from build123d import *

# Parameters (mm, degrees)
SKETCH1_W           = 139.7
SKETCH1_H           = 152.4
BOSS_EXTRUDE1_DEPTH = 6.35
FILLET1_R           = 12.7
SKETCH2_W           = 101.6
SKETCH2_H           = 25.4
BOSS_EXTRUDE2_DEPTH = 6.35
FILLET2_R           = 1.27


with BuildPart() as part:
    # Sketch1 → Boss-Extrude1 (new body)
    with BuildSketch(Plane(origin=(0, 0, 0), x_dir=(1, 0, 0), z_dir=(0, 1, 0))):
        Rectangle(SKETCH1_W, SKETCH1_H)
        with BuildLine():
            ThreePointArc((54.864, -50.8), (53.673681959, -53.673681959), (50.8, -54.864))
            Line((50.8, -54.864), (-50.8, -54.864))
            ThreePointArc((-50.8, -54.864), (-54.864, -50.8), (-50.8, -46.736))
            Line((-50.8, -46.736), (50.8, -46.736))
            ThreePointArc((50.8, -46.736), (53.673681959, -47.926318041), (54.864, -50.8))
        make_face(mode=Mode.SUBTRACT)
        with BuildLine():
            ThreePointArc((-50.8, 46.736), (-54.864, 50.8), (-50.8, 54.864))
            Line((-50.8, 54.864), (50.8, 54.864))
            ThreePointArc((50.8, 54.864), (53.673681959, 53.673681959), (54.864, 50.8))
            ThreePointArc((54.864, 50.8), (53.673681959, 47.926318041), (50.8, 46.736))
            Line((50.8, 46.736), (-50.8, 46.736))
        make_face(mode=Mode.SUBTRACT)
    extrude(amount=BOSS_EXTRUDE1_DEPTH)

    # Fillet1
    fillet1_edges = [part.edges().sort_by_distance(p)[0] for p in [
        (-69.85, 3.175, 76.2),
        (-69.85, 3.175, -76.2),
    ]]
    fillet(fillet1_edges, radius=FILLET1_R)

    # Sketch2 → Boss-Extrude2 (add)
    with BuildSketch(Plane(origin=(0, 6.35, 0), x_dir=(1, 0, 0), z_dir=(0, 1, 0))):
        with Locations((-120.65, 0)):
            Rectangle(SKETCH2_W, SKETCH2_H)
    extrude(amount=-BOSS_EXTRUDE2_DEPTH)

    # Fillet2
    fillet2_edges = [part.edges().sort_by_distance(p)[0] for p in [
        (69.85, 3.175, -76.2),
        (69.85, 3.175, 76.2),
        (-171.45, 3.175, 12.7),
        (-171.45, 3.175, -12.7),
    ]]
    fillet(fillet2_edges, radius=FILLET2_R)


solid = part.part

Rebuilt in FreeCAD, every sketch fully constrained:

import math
import FreeCAD as App
import Part
import Sketcher
from FreeCAD import Vector
Q = App.Units.Quantity


def edges_at(feature, points):
    """Names of the edges that pass closest to the given points."""
    edges = feature.Shape.Edges
    near = lambda p: min(range(len(edges)), key=lambda i: edges[i].distToShape(Part.Vertex(*p))[0])
    return sorted({f"Edge{near(p) + 1}" for p in points})


def add_polygon(sketch, points):
    """Adds a closed chain of lines whose ends are joined by coincident constraints."""
    first, n = sketch.GeometryCount, len(points)
    for a, b in zip(points, points[1:] + points[:1]):
        sketch.addGeometry(Part.LineSegment(App.Vector(*a, 0), App.Vector(*b, 0)), False)
    for i in range(n):
        sketch.addConstraint(Sketcher.Constraint("Coincident", first + i, 2, first + (i + 1) % n, 1))

doc = App.newDocument("Part")
body = doc.addObject("PartDesign::Body", "Body")

# Sketch on XZ plane
sketch1 = doc.addObject("Sketcher::SketchObject", "Sketch")
body.addObject(sketch1)
sketch1.AttachmentSupport = (doc.XZ_Plane, [""])
sketch1.MapMode = "FlatFace"
add_polygon(sketch1, [(-69.8, -76.2), (-69.8, 76.2), (69.8, 76.2), (69.8, -76.2)])  # lines 0-3
sketch1.addGeometry(Part.ArcOfCircle(Part.Circle(Vector(50.8, 50.8, 0), Vector(0, 0, 1), 4.1), math.radians(-90), math.radians(0)), False)  # 4
sketch1.addGeometry(Part.ArcOfCircle(Part.Circle(Vector(50.8, 50.8, 0), Vector(0, 0, 1), 4.1), math.radians(0), math.radians(90)), False)  # 5
sketch1.addGeometry(Part.LineSegment(Vector(50.8, 54.9, 0), Vector(-50.8, 54.9, 0)), False)  # 6
sketch1.addGeometry(Part.ArcOfCircle(Part.Circle(Vector(-50.8, 50.8, 0), Vector(0, 0, 1), 4.1), math.radians(90), math.radians(270)), False)  # 7
sketch1.addGeometry(Part.LineSegment(Vector(-50.8, 46.7, 0), Vector(50.8, 46.7, 0)), False)  # 8
sketch1.addGeometry(Part.LineSegment(Vector(50.8, -46.7, 0), Vector(-50.8, -46.7, 0)), False)  # 9
sketch1.addGeometry(Part.ArcOfCircle(Part.Circle(Vector(-50.8, -50.8, 0), Vector(0, 0, 1), 4.1), math.radians(90), math.radians(270)), False)  # 10
sketch1.addGeometry(Part.LineSegment(Vector(-50.8, -54.9, 0), Vector(50.8, -54.9, 0)), False)  # 11
sketch1.addGeometry(Part.ArcOfCircle(Part.Circle(Vector(50.8, -50.8, 0), Vector(0, 0, 1), 4.1), math.radians(-90), math.radians(0)), False)  # 12
sketch1.addGeometry(Part.ArcOfCircle(Part.Circle(Vector(50.8, -50.8, 0), Vector(0, 0, 1), 4.1), math.radians(0), math.radians(90)), False)  # 13
sketch1.addConstraint([
    Sketcher.Constraint("Tangent", 4, 2, 5, 1),
    Sketcher.Constraint("Tangent", 5, 2, 6, 1),
    Sketcher.Constraint("Tangent", 6, 2, 7, 1),
    Sketcher.Constraint("Tangent", 7, 2, 8, 1),
    Sketcher.Constraint("Tangent", 8, 2, 4, 1),
    Sketcher.Constraint("Tangent", 9, 2, 10, 1),
    Sketcher.Constraint("Tangent", 10, 2, 11, 1),
    Sketcher.Constraint("Tangent", 11, 2, 12, 1),
    Sketcher.Constraint("Tangent", 12, 2, 13, 1),
    Sketcher.Constraint("Tangent", 13, 2, 9, 1),
    Sketcher.Constraint("Vertical", 0),
    Sketcher.Constraint("Horizontal", 1),
    Sketcher.Constraint("Vertical", 2),
    Sketcher.Constraint("Horizontal", 3),
    Sketcher.Constraint("Horizontal", 6),
    Sketcher.Constraint("Horizontal", 8),
    Sketcher.Constraint("Horizontal", 9),
    Sketcher.Constraint("Horizontal", 11),
    Sketcher.Constraint("Equal", 4, 5),
    Sketcher.Constraint("Equal", 7, 10),
    Sketcher.Constraint("Equal", 10, 12),
    Sketcher.Constraint("Symmetric", 4, 3, 10, 3, -1, 1),
    Sketcher.Constraint("Symmetric", 0, 2, 2, 2, -1, 1),
    Sketcher.Constraint("Symmetric", 4, 2, 12, 2, -1),
    Sketcher.Constraint("Horizontal", 7, 3, 4, 2),
    Sketcher.Constraint("Vertical", 7, 3, 10, 3),
    Sketcher.Constraint("DistanceX", 6, 2, 6, 1, Q("4 in")),
    Sketcher.Constraint("DistanceY", 0, 1, 0, 2, Q("6 in")),
    Sketcher.Constraint("Radius", 4, Q("0.16 in")),
    Sketcher.Constraint("DistanceX", 1, 1, 1, 2, Q("5.5 in")),
    Sketcher.Constraint("DistanceY", -1, 1, 4, 3, Q("2 in")),
])
pad1 = doc.addObject("PartDesign::Pad", "Pad")
body.addObject(pad1)
pad1.Profile = sketch1
pad1.Length = Q("0.25 in")
pad1.Reversed = True
doc.recompute()

fillet = doc.addObject("PartDesign::Fillet", "Fillet")
body.addObject(fillet)
fillet.Base = (pad1, edges_at(pad1, [(-69.85, 3.175, 76.2), (-69.85, 3.175, -76.2)]))
fillet.Radius = Q("0.5 in")

# Sketch on XZ plane
sketch2 = doc.addObject("Sketcher::SketchObject", "Sketch001")
body.addObject(sketch2)
sketch2.AttachmentSupport = (doc.XZ_Plane, [""])
sketch2.MapMode = "FlatFace"
sketch2.AttachmentOffset = App.Placement(Vector(0, 0, -0.25 * 25.4), App.Rotation())
add_polygon(sketch2, [(-171, -13), (-171, 13), (-70, 13), (-70, -13)])  # lines 0-3
sketch2.addConstraint([
    Sketcher.Constraint("Vertical", 0),
    Sketcher.Constraint("Horizontal", 1),
    Sketcher.Constraint("Vertical", 2),
    Sketcher.Constraint("Horizontal", 3),
    Sketcher.Constraint("DistanceX", 1, 1, 1, 2, Q("4 in")),
    Sketcher.Constraint("DistanceY", 0, 1, 0, 2, Q("1 in")),
    Sketcher.Constraint("DistanceY", -1, 1, 0, 2, Q("0.5 in")),
    Sketcher.Constraint("DistanceX", 0, 2, -1, 1, Q("6.75 in")),
])
pad2 = doc.addObject("PartDesign::Pad", "Pad001")
body.addObject(pad2)
pad2.Profile = sketch2
pad2.Length = Q("0.25 in")
doc.recompute()

fillet2 = doc.addObject("PartDesign::Fillet", "Fillet001")
body.addObject(fillet2)
fillet2.Base = (pad2, edges_at(pad2, [
    (69.85, 3.175, -76.2),
    (69.85, 3.175, 76.2),
    (-171.45, 3.175, 12.7),
    (-171.45, 3.175, -12.7),
]))
fillet2.Radius = Q("0.05 in")

doc.recompute()
